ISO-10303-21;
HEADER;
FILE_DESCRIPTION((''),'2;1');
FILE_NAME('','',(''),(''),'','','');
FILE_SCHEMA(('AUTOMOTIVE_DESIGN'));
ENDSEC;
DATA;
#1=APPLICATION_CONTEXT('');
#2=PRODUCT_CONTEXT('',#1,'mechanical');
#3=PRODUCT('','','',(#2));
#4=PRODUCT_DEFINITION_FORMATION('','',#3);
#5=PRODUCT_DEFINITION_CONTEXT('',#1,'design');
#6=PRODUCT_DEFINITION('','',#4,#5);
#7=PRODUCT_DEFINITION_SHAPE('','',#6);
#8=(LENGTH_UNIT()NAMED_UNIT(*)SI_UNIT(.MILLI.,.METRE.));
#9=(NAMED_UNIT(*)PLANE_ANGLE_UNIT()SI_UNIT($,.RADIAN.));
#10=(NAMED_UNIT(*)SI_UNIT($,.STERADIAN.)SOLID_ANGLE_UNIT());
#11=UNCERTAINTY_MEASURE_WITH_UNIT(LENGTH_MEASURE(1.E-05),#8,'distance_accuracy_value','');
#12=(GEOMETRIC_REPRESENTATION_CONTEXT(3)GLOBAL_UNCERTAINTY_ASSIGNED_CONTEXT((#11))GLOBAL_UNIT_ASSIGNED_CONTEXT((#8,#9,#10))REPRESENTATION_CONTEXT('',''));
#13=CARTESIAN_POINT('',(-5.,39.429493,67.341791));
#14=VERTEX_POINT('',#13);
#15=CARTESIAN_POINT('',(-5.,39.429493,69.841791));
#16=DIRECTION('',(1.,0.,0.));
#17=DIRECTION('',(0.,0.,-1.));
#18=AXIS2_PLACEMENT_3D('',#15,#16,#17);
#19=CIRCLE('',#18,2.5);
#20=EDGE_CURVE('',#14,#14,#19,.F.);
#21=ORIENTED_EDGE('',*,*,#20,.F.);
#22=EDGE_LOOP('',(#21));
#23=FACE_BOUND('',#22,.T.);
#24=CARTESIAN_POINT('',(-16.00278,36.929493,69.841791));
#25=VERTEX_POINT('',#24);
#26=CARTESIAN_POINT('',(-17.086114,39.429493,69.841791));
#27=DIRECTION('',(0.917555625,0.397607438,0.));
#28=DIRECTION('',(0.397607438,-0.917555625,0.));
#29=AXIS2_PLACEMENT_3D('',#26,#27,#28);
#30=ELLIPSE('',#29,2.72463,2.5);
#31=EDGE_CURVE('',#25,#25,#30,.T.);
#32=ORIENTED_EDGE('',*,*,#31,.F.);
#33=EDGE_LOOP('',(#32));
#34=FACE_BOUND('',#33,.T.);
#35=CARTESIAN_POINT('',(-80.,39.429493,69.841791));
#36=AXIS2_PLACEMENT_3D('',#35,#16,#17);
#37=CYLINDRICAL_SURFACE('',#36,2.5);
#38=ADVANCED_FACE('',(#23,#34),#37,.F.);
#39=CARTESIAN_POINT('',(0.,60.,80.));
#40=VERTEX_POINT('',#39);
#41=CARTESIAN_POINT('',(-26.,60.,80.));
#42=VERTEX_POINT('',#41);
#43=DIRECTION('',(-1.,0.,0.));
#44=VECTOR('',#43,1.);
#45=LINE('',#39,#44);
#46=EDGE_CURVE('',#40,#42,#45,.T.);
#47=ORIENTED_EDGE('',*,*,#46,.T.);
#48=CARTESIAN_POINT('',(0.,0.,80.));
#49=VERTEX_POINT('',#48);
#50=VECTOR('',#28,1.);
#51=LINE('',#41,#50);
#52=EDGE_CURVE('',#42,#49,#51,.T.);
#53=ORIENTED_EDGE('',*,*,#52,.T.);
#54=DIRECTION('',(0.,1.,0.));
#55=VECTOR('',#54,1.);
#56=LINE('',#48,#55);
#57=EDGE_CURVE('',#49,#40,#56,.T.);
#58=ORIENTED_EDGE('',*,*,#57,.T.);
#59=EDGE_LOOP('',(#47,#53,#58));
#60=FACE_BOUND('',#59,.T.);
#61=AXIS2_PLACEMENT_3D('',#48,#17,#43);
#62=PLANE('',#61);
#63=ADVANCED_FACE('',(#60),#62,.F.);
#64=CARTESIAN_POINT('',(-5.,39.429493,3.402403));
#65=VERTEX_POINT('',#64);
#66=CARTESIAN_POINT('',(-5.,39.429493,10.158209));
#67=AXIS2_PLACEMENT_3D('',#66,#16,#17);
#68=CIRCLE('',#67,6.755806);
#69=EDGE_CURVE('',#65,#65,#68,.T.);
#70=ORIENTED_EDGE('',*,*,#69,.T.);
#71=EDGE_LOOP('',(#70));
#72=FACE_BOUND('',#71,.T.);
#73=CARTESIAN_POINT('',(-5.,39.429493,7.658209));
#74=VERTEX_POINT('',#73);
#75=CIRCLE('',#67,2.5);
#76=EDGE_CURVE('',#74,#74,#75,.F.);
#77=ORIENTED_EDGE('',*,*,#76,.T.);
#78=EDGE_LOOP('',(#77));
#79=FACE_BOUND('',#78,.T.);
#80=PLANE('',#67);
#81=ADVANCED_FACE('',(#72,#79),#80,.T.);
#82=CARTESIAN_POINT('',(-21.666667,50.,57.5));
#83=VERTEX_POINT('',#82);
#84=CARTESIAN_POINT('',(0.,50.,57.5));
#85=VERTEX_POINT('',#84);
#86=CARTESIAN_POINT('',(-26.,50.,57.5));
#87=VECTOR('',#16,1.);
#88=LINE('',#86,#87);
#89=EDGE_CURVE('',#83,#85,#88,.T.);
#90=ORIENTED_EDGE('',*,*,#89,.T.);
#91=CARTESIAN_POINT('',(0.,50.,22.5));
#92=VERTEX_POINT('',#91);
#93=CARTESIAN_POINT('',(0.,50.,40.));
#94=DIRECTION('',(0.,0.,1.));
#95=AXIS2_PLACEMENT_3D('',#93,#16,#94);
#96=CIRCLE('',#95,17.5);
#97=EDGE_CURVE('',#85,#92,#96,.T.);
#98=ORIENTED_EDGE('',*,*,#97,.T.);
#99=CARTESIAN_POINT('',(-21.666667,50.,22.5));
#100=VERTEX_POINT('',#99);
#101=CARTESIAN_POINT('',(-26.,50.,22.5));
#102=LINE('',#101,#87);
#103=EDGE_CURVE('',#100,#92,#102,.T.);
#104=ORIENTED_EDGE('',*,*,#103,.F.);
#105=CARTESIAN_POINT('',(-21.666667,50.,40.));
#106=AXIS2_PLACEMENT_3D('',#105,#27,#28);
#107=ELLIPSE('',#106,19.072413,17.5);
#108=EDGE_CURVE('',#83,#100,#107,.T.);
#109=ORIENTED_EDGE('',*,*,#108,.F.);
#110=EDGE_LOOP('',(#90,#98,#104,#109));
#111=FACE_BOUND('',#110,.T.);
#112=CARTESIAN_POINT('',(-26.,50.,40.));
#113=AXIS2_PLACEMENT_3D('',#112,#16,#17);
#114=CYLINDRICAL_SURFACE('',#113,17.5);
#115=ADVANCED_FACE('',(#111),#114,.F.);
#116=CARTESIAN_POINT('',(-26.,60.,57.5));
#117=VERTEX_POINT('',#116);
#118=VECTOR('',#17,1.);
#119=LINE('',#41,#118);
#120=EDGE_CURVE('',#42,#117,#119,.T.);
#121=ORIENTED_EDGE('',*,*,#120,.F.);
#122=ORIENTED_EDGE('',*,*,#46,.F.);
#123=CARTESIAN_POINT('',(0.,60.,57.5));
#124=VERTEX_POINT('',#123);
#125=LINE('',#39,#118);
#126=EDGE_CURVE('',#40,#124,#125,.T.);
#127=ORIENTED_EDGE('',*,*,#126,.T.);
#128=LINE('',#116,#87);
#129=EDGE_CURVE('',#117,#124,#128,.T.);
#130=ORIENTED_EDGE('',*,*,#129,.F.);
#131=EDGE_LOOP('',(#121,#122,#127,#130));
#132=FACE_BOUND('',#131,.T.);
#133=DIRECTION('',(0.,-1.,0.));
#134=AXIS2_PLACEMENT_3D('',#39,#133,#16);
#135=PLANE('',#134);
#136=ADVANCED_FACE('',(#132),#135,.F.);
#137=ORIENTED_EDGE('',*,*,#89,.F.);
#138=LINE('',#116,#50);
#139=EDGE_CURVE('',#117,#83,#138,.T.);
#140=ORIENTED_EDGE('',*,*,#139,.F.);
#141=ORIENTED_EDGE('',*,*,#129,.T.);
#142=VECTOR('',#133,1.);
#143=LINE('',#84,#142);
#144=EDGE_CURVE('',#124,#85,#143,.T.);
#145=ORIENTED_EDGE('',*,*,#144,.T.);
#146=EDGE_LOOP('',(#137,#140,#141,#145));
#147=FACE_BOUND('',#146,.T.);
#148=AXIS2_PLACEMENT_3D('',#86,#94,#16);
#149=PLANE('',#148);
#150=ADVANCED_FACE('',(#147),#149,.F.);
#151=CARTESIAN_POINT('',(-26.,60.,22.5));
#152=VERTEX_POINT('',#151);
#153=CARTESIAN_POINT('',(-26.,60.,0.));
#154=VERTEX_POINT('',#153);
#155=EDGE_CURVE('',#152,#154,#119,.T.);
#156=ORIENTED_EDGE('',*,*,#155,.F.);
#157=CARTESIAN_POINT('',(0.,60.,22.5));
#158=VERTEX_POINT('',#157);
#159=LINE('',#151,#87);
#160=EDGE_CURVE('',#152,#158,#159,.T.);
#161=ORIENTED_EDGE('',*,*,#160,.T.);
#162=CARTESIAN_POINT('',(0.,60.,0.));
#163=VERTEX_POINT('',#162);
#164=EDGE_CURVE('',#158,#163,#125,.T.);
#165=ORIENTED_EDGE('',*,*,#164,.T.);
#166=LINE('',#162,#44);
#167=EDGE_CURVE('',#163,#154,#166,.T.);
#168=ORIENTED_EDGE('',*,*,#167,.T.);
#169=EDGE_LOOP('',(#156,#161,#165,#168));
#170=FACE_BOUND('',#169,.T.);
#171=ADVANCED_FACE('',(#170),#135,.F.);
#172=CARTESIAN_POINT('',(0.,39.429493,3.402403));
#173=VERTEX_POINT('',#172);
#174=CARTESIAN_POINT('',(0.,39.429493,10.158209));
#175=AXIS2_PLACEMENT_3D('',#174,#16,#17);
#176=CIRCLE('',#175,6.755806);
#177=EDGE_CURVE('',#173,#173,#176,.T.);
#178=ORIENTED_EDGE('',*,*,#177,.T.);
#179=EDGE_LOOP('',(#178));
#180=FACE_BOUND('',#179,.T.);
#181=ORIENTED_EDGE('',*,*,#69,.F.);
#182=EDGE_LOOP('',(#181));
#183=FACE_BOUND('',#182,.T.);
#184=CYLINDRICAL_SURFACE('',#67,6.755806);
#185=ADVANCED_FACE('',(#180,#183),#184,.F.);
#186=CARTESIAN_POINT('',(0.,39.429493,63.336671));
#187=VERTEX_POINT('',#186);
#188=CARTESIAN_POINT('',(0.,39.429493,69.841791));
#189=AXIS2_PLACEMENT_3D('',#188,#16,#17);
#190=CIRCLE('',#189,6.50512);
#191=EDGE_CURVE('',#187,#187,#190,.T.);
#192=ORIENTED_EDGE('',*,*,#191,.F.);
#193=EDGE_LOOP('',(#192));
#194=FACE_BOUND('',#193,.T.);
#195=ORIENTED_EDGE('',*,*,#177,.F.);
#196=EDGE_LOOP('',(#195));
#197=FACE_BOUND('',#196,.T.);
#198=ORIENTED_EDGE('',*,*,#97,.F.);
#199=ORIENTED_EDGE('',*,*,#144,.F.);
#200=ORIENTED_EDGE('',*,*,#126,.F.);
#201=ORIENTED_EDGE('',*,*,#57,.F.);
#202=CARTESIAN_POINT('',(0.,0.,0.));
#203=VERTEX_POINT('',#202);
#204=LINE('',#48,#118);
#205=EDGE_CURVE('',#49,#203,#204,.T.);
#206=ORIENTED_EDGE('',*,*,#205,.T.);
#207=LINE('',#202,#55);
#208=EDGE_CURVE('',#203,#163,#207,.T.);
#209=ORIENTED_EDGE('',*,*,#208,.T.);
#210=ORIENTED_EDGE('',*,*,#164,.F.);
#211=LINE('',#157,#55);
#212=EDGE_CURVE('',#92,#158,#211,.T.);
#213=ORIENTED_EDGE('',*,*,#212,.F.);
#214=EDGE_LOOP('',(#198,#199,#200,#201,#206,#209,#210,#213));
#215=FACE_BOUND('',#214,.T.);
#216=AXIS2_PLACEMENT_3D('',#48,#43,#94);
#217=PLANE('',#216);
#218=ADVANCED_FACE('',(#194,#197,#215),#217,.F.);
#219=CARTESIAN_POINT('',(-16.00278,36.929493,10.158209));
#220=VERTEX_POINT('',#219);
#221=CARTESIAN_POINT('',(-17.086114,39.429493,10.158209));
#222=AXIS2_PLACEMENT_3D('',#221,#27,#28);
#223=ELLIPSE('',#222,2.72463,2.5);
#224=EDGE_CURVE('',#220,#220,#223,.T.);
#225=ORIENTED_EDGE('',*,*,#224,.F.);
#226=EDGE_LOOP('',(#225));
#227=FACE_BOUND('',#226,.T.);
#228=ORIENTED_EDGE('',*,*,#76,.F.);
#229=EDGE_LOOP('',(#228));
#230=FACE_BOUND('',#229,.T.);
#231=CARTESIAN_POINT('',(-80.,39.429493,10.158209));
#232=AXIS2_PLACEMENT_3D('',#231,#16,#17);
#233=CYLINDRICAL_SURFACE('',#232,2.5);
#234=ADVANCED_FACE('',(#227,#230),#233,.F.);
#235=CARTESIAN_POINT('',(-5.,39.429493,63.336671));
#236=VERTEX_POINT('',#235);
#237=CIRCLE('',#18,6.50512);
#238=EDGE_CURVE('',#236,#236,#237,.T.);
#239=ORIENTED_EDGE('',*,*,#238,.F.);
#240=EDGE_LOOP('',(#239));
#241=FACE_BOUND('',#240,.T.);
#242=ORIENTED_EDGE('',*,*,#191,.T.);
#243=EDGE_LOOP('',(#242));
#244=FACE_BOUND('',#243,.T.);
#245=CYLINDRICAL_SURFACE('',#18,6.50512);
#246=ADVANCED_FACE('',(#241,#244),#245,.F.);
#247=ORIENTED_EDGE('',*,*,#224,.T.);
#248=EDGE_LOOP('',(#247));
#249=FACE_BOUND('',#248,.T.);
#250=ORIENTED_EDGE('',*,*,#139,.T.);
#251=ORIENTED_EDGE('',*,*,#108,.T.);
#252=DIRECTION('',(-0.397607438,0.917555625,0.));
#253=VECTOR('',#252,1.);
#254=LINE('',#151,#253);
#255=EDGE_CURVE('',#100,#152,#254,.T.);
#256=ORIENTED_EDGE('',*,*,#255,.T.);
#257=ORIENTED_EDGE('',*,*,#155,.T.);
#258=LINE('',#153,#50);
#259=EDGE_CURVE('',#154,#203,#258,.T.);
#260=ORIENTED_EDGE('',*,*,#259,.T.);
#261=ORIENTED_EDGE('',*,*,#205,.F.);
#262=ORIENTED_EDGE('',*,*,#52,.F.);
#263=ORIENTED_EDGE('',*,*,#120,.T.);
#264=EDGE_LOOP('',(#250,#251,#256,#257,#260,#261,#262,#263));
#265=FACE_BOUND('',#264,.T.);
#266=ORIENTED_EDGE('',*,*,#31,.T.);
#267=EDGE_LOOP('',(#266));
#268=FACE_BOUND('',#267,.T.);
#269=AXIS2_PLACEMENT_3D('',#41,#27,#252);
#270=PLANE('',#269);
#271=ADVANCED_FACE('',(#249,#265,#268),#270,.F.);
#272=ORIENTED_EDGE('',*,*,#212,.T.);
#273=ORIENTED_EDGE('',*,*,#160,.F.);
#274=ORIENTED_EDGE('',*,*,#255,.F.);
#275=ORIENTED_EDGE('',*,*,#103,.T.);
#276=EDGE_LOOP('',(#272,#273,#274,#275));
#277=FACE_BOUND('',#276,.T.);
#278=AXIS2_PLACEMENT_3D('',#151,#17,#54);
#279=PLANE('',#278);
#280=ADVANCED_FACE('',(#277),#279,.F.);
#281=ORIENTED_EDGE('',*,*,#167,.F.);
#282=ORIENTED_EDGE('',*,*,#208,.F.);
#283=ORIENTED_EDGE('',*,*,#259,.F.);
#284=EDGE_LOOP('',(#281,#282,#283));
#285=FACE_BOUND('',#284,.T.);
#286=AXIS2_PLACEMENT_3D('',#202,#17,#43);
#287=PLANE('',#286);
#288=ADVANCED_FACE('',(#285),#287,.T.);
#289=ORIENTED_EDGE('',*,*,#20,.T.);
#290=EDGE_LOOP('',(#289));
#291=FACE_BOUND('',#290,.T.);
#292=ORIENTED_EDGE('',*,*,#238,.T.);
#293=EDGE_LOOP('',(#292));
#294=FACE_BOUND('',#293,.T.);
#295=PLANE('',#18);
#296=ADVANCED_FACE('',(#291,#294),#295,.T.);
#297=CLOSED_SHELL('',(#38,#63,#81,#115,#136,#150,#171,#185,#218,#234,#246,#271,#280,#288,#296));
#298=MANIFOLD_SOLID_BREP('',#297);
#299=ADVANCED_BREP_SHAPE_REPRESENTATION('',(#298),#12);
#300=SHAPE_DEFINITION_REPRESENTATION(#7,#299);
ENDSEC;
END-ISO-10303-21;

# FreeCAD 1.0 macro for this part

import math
import FreeCAD as App
import Part
import Sketcher
Q = App.Units.Quantity


def add_polygon(sketch, points):
    """Adds a closed chain of lines whose ends are joined by coincident constraints."""
    first, n = sketch.GeometryCount, len(points)
    for a, b in zip(points, points[1:] + points[:1]):
        sketch.addGeometry(Part.LineSegment(App.Vector(*a, 0), App.Vector(*b, 0)), False)
    for i in range(n):
        sketch.addConstraint(Sketcher.Constraint("Coincident", first + i, 2, first + (i + 1) % n, 1))

doc = App.newDocument("Part")
body = doc.addObject("PartDesign::Body", "Body")

# Sketch on XY plane
sketch1 = body.newObject("Sketcher::SketchObject", "Sketch")
sketch1.AttachmentSupport = (doc.getObject("XY_Plane"), [""])
sketch1.MapMode = "FlatFace"
add_polygon(sketch1, [(0, 0), (0, 60), (-26, 60)])  # lines 0-2
sketch1.addConstraint(Sketcher.Constraint("Vertical", 0))
sketch1.addConstraint(Sketcher.Constraint("Horizontal", 1))
sketch1.addConstraint(Sketcher.Constraint("Coincident", 2, 2, -1, 1))
sketch1.addConstraint(Sketcher.Constraint("DistanceX", 1, 2, 1, 1, Q("26 mm")))
sketch1.addConstraint(Sketcher.Constraint("DistanceY", 0, 1, 0, 2, Q("60 mm")))
pad1 = body.newObject("PartDesign::Pad", "Pad")
pad1.Profile = sketch1
pad1.Length = 80

# Sketch on YZ plane
sketch2 = body.newObject("Sketcher::SketchObject", "Sketch001")
sketch2.AttachmentSupport = (doc.getObject("YZ_Plane"), [""])
sketch2.MapMode = "FlatFace"
sketch2.addGeometry(Part.LineSegment(App.Vector(60, 57.5, 0), App.Vector(50, 57.5, 0)), False)
sketch2.addGeometry(Part.ArcOfCircle(Part.Circle(App.Vector(50, 40, 0), App.Vector(0, 0, 1), 17.5), math.radians(90), math.radians(270)), False)
sketch2.addGeometry(Part.LineSegment(App.Vector(50, 22.5, 0), App.Vector(60, 22.5, 0)), False)
sketch2.addGeometry(Part.LineSegment(App.Vector(60, 22.5, 0), App.Vector(60, 57.5, 0)), False)
sketch2.addConstraint(Sketcher.Constraint("Tangent", 0, 2, 1, 1))
sketch2.addConstraint(Sketcher.Constraint("Tangent", 1, 2, 2, 1))
sketch2.addConstraint(Sketcher.Constraint("Coincident", 2, 2, 3, 1))
sketch2.addConstraint(Sketcher.Constraint("Coincident", 3, 2, 0, 1))
sketch2.addConstraint(Sketcher.Constraint("Horizontal", 0))
sketch2.addConstraint(Sketcher.Constraint("Horizontal", 2))
sketch2.addConstraint(Sketcher.Constraint("Vertical", 3))
sketch2.addConstraint(Sketcher.Constraint("Radius", 1, Q("17.5 mm")))
sketch2.addConstraint(Sketcher.Constraint("DistanceX", 0, 2, 0, 1, Q("10 mm")))
sketch2.addConstraint(Sketcher.Constraint("DistanceX", -1, 1, 1, 3, Q("50 mm")))
sketch2.addConstraint(Sketcher.Constraint("DistanceY", -1, 1, 1, 3, Q("40 mm")))
pocket1 = body.newObject("PartDesign::Pocket", "Pocket")
pocket1.Profile = sketch2
pocket1.Type = "ThroughAll"

# Sketch on YZ plane
sketch3 = body.newObject("Sketcher::SketchObject", "Sketch002")
sketch3.AttachmentSupport = (doc.getObject("YZ_Plane"), [""])
sketch3.MapMode = "FlatFace"
sketch3.addGeometry(Part.Circle(App.Vector(39.429493, 69.841791, 0), App.Vector(0, 0, 1), 2.5), False)
sketch3.addGeometry(Part.Circle(App.Vector(39.429493, 10.158209, 0), App.Vector(0, 0, 1), 2.5), False)
sketch3.addConstraint(Sketcher.Constraint("Equal", 0, 1))
sketch3.addConstraint(Sketcher.Constraint("Vertical", 0, 3, 1, 3))
sketch3.addConstraint(Sketcher.Constraint("Diameter", 0, Q("5 mm")))
sketch3.addConstraint(Sketcher.Constraint("DistanceY", -1, 1, 0, 3, Q("69.841791 mm")))
sketch3.addConstraint(Sketcher.Constraint("DistanceY", -1, 1, 1, 3, Q("10.158209 mm")))
sketch3.addConstraint(Sketcher.Constraint("DistanceX", -1, 1, 0, 3, Q("39.429493 mm")))
pocket2 = body.newObject("PartDesign::Pocket", "Pocket001")
pocket2.Profile = sketch3
pocket2.Length = 80

# Sketch on YZ plane
sketch4 = body.newObject("Sketcher::SketchObject", "Sketch003")
sketch4.AttachmentSupport = (doc.getObject("YZ_Plane"), [""])
sketch4.MapMode = "FlatFace"
sketch4.addGeometry(Part.Circle(App.Vector(39.429493, 69.841791, 0), App.Vector(0, 0, 1), 6.50512), False)
sketch4.addGeometry(Part.Circle(App.Vector(39.429493, 10.158209, 0), App.Vector(0, 0, 1), 6.755806), False)
sketch4.addConstraint(Sketcher.Constraint("Vertical", 0, 3, 1, 3))
sketch4.addConstraint(Sketcher.Constraint("Diameter", 0, Q("13.01024 mm")))
sketch4.addConstraint(Sketcher.Constraint("Diameter", 1, Q("13.511612 mm")))
sketch4.addConstraint(Sketcher.Constraint("DistanceY", -1, 1, 0, 3, Q("69.841791 mm")))
sketch4.addConstraint(Sketcher.Constraint("DistanceY", -1, 1, 1, 3, Q("10.158209 mm")))
sketch4.addConstraint(Sketcher.Constraint("DistanceX", -1, 1, 0, 3, Q("39.429493 mm")))
pocket3 = body.newObject("PartDesign::Pocket", "Pocket002")
pocket3.Profile = sketch4
pocket3.Length = 5

doc.recompute()
